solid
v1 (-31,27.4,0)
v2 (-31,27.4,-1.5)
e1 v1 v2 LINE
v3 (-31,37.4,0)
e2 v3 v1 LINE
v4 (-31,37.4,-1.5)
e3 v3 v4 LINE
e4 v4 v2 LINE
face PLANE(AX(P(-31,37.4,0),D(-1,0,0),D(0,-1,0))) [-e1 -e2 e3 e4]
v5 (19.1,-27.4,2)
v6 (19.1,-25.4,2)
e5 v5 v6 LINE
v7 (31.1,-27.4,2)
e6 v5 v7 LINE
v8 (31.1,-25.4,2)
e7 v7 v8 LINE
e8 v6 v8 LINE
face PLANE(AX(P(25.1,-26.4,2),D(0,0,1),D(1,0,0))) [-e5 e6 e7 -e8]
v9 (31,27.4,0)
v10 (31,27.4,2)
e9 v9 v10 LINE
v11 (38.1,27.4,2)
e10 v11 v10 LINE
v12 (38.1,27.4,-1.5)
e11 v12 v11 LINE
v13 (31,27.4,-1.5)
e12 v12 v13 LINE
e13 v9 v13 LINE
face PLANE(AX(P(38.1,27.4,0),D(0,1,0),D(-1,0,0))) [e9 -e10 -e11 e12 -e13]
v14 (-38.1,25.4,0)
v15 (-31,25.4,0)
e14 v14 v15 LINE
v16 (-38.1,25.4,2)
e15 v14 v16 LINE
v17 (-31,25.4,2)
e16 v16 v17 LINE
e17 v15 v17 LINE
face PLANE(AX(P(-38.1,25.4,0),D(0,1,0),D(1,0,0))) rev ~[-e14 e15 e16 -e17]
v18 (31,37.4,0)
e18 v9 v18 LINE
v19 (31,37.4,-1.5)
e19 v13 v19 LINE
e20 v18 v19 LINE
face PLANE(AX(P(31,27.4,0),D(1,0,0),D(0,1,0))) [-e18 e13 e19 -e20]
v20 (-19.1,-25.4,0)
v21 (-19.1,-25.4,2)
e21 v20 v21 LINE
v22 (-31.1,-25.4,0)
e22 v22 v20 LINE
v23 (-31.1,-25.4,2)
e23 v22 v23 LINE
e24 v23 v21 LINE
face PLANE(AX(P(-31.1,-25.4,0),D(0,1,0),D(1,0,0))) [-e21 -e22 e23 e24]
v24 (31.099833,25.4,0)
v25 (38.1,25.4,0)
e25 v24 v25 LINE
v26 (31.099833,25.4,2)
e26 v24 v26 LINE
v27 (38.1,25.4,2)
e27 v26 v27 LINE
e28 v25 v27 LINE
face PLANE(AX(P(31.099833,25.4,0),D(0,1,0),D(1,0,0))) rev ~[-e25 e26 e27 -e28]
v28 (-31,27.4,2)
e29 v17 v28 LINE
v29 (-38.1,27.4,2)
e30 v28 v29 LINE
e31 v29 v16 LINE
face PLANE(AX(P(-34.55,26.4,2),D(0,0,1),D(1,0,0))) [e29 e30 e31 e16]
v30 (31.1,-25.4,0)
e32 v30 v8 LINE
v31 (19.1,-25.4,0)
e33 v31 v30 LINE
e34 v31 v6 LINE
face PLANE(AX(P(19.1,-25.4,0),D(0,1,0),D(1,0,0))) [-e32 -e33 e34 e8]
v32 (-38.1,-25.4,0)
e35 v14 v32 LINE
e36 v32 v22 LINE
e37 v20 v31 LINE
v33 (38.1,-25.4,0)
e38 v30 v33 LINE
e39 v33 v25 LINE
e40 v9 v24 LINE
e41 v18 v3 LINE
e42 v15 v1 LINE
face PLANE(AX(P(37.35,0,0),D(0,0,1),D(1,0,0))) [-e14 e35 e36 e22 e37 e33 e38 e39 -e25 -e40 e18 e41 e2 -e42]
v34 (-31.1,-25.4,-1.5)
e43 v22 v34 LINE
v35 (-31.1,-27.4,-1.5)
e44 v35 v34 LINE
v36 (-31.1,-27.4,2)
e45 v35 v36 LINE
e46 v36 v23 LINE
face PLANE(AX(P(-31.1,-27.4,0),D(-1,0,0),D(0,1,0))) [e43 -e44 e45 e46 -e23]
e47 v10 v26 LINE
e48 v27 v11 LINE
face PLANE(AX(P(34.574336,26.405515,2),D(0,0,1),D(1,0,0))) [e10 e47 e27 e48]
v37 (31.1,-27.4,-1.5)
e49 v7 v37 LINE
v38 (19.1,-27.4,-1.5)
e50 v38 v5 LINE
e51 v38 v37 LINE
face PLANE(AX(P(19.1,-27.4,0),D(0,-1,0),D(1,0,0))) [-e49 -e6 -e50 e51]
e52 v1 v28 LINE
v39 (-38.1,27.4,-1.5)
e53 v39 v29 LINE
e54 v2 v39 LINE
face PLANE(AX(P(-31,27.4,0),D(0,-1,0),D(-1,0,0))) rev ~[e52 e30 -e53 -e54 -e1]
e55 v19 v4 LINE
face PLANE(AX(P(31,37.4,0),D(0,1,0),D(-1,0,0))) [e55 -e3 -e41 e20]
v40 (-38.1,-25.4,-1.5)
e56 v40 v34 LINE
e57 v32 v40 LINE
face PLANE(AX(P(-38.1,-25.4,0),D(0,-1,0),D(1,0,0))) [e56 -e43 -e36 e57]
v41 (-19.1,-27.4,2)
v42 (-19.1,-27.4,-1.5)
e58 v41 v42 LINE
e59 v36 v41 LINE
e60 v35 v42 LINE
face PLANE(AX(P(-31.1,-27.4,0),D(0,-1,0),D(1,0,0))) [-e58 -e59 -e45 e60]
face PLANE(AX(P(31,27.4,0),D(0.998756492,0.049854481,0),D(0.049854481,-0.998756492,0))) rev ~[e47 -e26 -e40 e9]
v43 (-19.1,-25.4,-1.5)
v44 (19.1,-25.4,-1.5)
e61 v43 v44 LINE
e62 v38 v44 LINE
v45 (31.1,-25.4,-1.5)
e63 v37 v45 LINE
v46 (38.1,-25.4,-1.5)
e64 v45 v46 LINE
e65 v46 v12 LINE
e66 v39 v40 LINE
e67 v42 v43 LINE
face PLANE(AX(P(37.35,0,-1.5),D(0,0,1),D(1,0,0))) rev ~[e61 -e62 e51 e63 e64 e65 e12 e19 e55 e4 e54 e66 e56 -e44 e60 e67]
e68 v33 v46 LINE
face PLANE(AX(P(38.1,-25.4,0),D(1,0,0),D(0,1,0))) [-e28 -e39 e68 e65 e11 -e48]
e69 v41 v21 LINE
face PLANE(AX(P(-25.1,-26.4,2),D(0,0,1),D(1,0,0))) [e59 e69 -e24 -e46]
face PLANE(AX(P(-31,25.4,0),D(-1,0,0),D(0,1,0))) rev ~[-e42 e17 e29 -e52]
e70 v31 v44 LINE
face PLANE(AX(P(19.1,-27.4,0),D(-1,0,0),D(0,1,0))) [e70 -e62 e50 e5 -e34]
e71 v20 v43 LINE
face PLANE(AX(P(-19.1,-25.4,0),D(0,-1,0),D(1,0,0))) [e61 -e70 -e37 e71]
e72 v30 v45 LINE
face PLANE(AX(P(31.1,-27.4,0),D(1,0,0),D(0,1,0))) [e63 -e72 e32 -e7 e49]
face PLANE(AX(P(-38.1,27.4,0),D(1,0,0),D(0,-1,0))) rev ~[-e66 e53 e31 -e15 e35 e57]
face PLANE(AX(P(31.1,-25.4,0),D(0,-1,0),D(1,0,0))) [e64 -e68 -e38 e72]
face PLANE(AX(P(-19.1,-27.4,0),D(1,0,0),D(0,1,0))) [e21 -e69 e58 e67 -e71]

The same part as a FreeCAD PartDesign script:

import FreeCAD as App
import Part
import Sketcher

V = App.Vector


def add_polygon(sketch, points):
    """Adds a closed chain of lines whose ends are joined by coincident constraints."""
    first, n = sketch.GeometryCount, len(points)
    for a, b in zip(points, points[1:] + points[:1]):
        sketch.addGeometry(Part.LineSegment(App.Vector(*a, 0), App.Vector(*b, 0)), False)
    for i in range(n):
        sketch.addConstraint(Sketcher.Constraint("Coincident", first + i, 2, first + (i + 1) % n, 1))

doc = App.newDocument("Part")
body = doc.addObject("PartDesign::Body", "Body")

# Sketch on XY plane
sketch1 = body.newObject("Sketcher::SketchObject", "Sketch")
sketch1.AttachmentSupport = (doc.getObject("XY_Plane"), [""])
sketch1.MapMode = "FlatFace"
add_polygon(sketch1, [(38.1, -25.4), (38.1, 27.4), (31, 27.4), (31, 37.4), (-31, 37.4), (-31, 27.4), (-38.1, 27.4), (-38.1, -25.4), (-31.1, -25.4), (-31.1, -27.4), (-19.1, -27.4), (-19.1, -25.4), (19.1, -25.4), (19.1, -27.4), (31.1, -27.4), (31.1, -25.4)])  # lines 0-15
sketch1.addConstraint([
    Sketcher.Constraint("Vertical", 0),
    Sketcher.Constraint("Horizontal", 1),
    Sketcher.Constraint("Vertical", 2),
    Sketcher.Constraint("Horizontal", 3),
    Sketcher.Constraint("Vertical", 4),
    Sketcher.Constraint("Horizontal", 5),
    Sketcher.Constraint("Vertical", 6),
    Sketcher.Constraint("Horizontal", 7),
    Sketcher.Constraint("Vertical", 8),
    Sketcher.Constraint("Horizontal", 9),
    Sketcher.Constraint("Vertical", 10),
    Sketcher.Constraint("Horizontal", 11),
    Sketcher.Constraint("Vertical", 12),
    Sketcher.Constraint("Horizontal", 13),
    Sketcher.Constraint("Vertical", 14),
    Sketcher.Constraint("Horizontal", 15),
    Sketcher.Constraint("Symmetric", 1, 2, 4, 2, -2),
    Sketcher.Constraint("Symmetric", 9, 2, 12, 2, -2),
    Sketcher.Constraint("Symmetric", 7, 2, 14, 2, -2),
    Sketcher.Constraint("Horizontal", 7, 2, 10, 2),
    Sketcher.Constraint("Equal", 1, 5),
    Sketcher.Constraint("DistanceX", 3, 2, 3, 1, 62.0),
    Sketcher.Constraint("DistanceX", 7, 1, 7, 2, 7.0),
    Sketcher.Constraint("DistanceX", 9, 1, 9, 2, 12.0),
    Sketcher.Constraint("DistanceY", 2, 1, 2, 2, 10.0),
    Sketcher.Constraint("DistanceY", 8, 2, 8, 1, 2.0),
    Sketcher.Constraint("DistanceX", 1, 2, 1, 1, 7.1),
    Sketcher.Constraint("DistanceY", 0, 1, 0, 2, 52.8),
    Sketcher.Constraint("DistanceY", -1, 1, 0, 2, 27.4),
])
pad1 = body.newObject("PartDesign::Pad", "Pad")
pad1.Profile = sketch1
pad1.Length = 1.5
pad1.Reversed = True

# Sketch on XY plane
sketch2 = body.newObject("Sketcher::SketchObject", "Sketch001")
sketch2.AttachmentSupport = (doc.getObject("XY_Plane"), [""])
sketch2.MapMode = "FlatFace"
add_polygon(sketch2, [(-31, 25.4), (-31, 27.4), (-38.1, 27.4), (-38.1, 25.4)])  # lines 0-3
add_polygon(sketch2, [(38.1, 25.4), (38.1, 27.4), (31, 27.4), (31.1, 25.4)])  # lines 4-7
add_polygon(sketch2, [(19.1, -25.4), (19.1, -27.4), (31.1, -27.4), (31.1, -25.4)])  # lines 8-11
add_polygon(sketch2, [(-31.1, -25.4), (-31.1, -27.4), (-19.1, -27.4), (-19.1, -25.4)])  # lines 12-15
sketch2.addConstraint([
    Sketcher.Constraint("Vertical", 0),
    Sketcher.Constraint("Horizontal", 1),
    Sketcher.Constraint("Vertical", 2),
    Sketcher.Constraint("Horizontal", 3),
    Sketcher.Constraint("Vertical", 4),
    Sketcher.Constraint("Horizontal", 5),
    Sketcher.Constraint("Horizontal", 7),
    Sketcher.Constraint("Vertical", 8),
    Sketcher.Constraint("Horizontal", 9),
    Sketcher.Constraint("Vertical", 10),
    Sketcher.Constraint("Horizontal", 11),
    Sketcher.Constraint("Vertical", 12),
    Sketcher.Constraint("Horizontal", 13),
    Sketcher.Constraint("Vertical", 14),
    Sketcher.Constraint("Horizontal", 15),
    Sketcher.Constraint("Symmetric", 1, 2, 4, 2, -2),
    Sketcher.Constraint("Symmetric", 9, 2, 12, 2, -2),
    Sketcher.Constraint("Symmetric", 11, 2, 14, 2, -2),
    Sketcher.Constraint("Horizontal", 3, 2, 6, 2),
    Sketcher.Constraint("Equal", 3, 5),
    Sketcher.Constraint("Equal", 4, 8),
    Sketcher.Constraint("DistanceX", 9, 1, 9, 2, 12.0),
    Sketcher.Constraint("DistanceY", 0, 1, 0, 2, 2.0),
    Sketcher.Constraint("DistanceX", 1, 2, 1, 1, 7.1),
    Sketcher.Constraint("DistanceX", 0, 2, -1, 1, 31.0),
    Sketcher.Constraint("DistanceX", 8, 2, 7, 2, 19.0),
    Sketcher.Constraint("DistanceY", -1, 1, 0, 2, 27.4),
    Sketcher.Constraint("DistanceY", 8, 2, -1, 1, 27.4),
    Sketcher.Constraint("Distance", 6, 2.00249),
])
pad2 = body.newObject("PartDesign::Pad", "Pad001")
pad2.Profile = sketch2
pad2.Length = 2

doc.recompute()
